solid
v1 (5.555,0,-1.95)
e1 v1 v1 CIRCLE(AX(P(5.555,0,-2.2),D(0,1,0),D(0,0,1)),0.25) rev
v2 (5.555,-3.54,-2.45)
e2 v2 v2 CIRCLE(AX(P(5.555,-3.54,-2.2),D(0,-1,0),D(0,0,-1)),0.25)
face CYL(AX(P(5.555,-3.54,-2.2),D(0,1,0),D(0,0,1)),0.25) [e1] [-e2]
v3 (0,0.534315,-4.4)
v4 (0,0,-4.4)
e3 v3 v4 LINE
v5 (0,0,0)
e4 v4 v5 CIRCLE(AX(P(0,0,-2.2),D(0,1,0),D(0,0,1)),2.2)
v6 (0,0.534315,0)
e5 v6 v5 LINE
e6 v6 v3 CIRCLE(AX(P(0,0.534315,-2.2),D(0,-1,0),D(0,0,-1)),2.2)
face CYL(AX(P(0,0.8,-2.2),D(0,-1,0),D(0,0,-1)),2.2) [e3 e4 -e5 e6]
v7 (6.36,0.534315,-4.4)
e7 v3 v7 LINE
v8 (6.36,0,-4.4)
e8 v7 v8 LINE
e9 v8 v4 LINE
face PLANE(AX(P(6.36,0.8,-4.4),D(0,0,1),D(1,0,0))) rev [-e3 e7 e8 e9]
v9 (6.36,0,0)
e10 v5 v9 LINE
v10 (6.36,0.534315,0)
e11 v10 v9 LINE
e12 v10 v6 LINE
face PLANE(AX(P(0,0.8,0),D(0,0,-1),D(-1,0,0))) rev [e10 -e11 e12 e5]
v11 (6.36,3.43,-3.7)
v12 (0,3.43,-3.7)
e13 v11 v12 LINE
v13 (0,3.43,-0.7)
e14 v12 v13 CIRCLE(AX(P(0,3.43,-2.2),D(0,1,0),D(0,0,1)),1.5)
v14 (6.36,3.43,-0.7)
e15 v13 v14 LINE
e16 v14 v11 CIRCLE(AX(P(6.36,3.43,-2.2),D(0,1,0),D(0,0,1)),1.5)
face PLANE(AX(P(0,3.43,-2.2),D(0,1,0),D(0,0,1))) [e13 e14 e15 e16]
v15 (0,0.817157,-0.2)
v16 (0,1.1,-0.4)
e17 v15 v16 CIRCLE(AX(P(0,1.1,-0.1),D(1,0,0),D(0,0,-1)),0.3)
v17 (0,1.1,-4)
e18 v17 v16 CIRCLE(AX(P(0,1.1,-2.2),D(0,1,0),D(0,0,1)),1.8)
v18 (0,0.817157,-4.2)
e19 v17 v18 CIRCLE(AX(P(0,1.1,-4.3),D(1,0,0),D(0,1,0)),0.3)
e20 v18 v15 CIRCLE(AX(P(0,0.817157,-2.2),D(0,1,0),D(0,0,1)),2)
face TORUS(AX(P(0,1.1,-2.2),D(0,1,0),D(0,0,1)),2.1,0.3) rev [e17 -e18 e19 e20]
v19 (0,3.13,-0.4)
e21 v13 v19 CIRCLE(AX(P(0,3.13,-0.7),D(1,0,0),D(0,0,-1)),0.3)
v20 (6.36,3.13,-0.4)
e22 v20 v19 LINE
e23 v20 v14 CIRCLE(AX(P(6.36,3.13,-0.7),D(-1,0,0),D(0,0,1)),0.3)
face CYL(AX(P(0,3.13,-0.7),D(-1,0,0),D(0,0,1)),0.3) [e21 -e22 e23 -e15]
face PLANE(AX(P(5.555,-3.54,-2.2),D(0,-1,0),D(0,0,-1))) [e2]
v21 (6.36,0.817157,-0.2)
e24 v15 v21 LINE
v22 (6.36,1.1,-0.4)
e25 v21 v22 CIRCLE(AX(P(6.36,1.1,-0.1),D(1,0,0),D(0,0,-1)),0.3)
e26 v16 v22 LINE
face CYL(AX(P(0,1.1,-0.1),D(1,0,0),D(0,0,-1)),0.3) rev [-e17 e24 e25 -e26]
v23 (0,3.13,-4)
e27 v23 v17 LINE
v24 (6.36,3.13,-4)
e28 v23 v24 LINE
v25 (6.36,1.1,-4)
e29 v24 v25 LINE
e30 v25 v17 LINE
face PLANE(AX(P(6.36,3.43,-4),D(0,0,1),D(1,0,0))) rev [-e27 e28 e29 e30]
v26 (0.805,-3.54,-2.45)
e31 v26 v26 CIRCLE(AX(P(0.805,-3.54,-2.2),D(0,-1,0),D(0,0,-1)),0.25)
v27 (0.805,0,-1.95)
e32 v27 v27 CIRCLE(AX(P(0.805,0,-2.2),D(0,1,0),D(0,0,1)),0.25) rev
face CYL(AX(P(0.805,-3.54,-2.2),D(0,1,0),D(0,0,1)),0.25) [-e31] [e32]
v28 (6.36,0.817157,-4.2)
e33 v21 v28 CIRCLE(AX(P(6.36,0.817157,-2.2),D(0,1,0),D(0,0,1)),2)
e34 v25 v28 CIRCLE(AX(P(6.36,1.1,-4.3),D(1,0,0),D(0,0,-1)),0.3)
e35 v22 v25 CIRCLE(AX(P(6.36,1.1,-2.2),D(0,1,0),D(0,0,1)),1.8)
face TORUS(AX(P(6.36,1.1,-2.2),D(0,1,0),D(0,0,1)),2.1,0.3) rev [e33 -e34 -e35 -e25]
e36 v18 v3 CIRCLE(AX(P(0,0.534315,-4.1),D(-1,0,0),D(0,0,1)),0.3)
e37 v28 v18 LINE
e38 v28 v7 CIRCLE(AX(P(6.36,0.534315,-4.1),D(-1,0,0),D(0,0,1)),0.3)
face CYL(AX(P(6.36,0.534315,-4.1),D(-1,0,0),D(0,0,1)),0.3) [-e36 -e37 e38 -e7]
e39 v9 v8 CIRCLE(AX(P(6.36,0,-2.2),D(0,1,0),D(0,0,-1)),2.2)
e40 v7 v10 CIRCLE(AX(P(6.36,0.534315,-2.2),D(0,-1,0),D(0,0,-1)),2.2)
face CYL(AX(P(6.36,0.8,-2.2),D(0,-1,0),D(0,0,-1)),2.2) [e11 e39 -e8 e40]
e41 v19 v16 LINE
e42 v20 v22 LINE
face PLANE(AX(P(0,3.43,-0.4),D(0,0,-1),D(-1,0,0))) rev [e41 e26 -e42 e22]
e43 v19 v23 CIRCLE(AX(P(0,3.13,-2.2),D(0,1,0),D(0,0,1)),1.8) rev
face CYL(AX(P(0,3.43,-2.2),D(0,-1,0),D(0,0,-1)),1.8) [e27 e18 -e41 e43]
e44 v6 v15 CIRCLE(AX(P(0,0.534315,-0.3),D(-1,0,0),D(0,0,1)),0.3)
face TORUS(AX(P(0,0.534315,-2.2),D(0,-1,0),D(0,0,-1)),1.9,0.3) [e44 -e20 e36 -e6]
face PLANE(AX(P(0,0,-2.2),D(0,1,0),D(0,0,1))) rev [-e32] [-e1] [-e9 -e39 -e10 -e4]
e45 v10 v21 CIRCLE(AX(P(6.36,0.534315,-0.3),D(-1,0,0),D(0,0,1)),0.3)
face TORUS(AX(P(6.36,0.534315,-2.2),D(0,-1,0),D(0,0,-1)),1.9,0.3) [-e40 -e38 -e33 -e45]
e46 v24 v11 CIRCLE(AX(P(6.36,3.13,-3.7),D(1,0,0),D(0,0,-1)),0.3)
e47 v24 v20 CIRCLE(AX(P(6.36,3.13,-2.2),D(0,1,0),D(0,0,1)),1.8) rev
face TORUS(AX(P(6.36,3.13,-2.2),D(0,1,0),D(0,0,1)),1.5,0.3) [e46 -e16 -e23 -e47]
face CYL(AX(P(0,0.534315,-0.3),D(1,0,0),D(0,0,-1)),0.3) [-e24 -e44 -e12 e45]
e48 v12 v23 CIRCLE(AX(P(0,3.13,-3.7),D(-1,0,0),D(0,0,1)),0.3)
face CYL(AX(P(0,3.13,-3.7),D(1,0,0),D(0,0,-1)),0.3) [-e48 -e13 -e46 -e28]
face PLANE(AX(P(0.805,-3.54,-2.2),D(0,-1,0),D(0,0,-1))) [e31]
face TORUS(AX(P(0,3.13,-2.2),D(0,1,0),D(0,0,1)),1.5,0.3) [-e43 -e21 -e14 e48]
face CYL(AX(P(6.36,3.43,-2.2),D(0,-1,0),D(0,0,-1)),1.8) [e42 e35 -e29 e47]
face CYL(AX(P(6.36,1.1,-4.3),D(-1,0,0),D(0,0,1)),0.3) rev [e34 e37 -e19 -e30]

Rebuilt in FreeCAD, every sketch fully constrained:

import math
import FreeCAD as App
import Part
import Sketcher
Q = App.Units.Quantity


def edges_at(feature, points):
    """Names of the edges that pass closest to the given points."""
    edges = feature.Shape.Edges
    near = lambda p: min(range(len(edges)), key=lambda i: edges[i].distToShape(Part.Vertex(*p))[0])
    return sorted({f"Edge{near(p) + 1}" for p in points})

doc = App.newDocument("Part")
body = doc.addObject("PartDesign::Body", "Body")

# Sketch on XZ plane
sketch1 = body.newObject("Sketcher::SketchObject", "Sketch")
sketch1.AttachmentSupport = (doc.getObject("XZ_Plane"), [""])
sketch1.MapMode = "FlatFace"
sketch1.addGeometry([
    Part.LineSegment(App.Vector(0, -0.4, 0), App.Vector(6.4, -0.4, 0)),
    Part.ArcOfCircle(Part.Circle(App.Vector(6.4, -2.2, 0), App.Vector(0, 0, 1), 1.8), math.radians(-90), math.radians(90)),
    Part.LineSegment(App.Vector(6.4, -4, 0), App.Vector(0, -4, 0)),
    Part.ArcOfCircle(Part.Circle(App.Vector(0, -2.2, 0), App.Vector(0, 0, 1), 1.8), math.radians(90), math.radians(270)),
], False)
sketch1.addConstraint([
    Sketcher.Constraint("Tangent", 0, 2, 1, 2),
    Sketcher.Constraint("Tangent", 1, 1, 2, 1),
    Sketcher.Constraint("Tangent", 2, 2, 3, 2),
    Sketcher.Constraint("Tangent", 3, 1, 0, 1),
    Sketcher.Constraint("Horizontal", 0),
    Sketcher.Constraint("Horizontal", 2),
    Sketcher.Constraint("PointOnObject", 3, 3, -2),
    Sketcher.Constraint("Radius", 1, Q("1.8 mm")),
    Sketcher.Constraint("DistanceY", 1, 1, -1, 1, Q("4 mm")),
    Sketcher.Constraint("DistanceX", 0, 1, 0, 2, Q("6.36 mm")),
])
pad1 = body.newObject("PartDesign::Pad", "Pad")
pad1.Profile = sketch1
pad1.Length = 3.43
pad1.Reversed = True

# Sketch on XZ plane
sketch2 = body.newObject("Sketcher::SketchObject", "Sketch001")
sketch2.AttachmentSupport = (doc.getObject("XZ_Plane"), [""])
sketch2.MapMode = "FlatFace"
sketch2.addGeometry([
    Part.LineSegment(App.Vector(0, 0, 0), App.Vector(6.4, 0, 0)),  # 0
    Part.ArcOfCircle(Part.Circle(App.Vector(6.4, -2.2, 0), App.Vector(0, 0, 1), 2.2), math.radians(-90), math.radians(90)),  # 1
    Part.LineSegment(App.Vector(6.4, -4.4, 0), App.Vector(0, -4.4, 0)),  # 2
    Part.ArcOfCircle(Part.Circle(App.Vector(0, -2.2, 0), App.Vector(0, 0, 1), 2.2), math.radians(90), math.radians(270)),  # 3
    Part.LineSegment(App.Vector(6.4, -0.4, 0), App.Vector(0, -0.4, 0)),  # 4
    Part.ArcOfCircle(Part.Circle(App.Vector(0, -2.2, 0), App.Vector(0, 0, 1), 1.8), math.radians(90), math.radians(270)),  # 5
    Part.LineSegment(App.Vector(0, -4, 0), App.Vector(6.4, -4, 0)),  # 6
    Part.ArcOfCircle(Part.Circle(App.Vector(6.4, -2.2, 0), App.Vector(0, 0, 1), 1.8), math.radians(-90), math.radians(90)),  # 7
], False)
sketch2.addConstraint([
    Sketcher.Constraint("Tangent", 0, 2, 1, 2),
    Sketcher.Constraint("Tangent", 1, 1, 2, 1),
    Sketcher.Constraint("Tangent", 2, 2, 3, 2),
    Sketcher.Constraint("Tangent", 3, 1, 0, 1),
    Sketcher.Constraint("Tangent", 4, 2, 5, 1),
    Sketcher.Constraint("Tangent", 5, 2, 6, 1),
    Sketcher.Constraint("Tangent", 6, 2, 7, 1),
    Sketcher.Constraint("Tangent", 7, 2, 4, 1),
    Sketcher.Constraint("Horizontal", 0),
    Sketcher.Constraint("Horizontal", 2),
    Sketcher.Constraint("Horizontal", 4),
    Sketcher.Constraint("Horizontal", 6),
    Sketcher.Constraint("Coincident", 3, 1, -1, 1),
    Sketcher.Constraint("Coincident", 5, 3, 3, 3),
    Sketcher.Constraint("Vertical", 7, 3, 0, 2),
    Sketcher.Constraint("Radius", 1, Q("2.2 mm")),
    Sketcher.Constraint("Radius", 5, Q("1.8 mm")),
    Sketcher.Constraint("DistanceX", 0, 1, 0, 2, Q("6.36 mm")),
])
pad2 = body.newObject("PartDesign::Pad", "Pad001")
pad2.Profile = sketch2
pad2.Length = 0.8
pad2.Reversed = True
doc.recompute()

fillet = body.newObject("PartDesign::Fillet", "Fillet")
fillet.Base = (pad2, edges_at(pad2, [
    (8.16, 3.43, -2.2),
    (3.18, 3.43, -4),
    (-1.8, 0.8, -2.2),
    (3.18, 0.8, -0.4),
    (8.16, 0.8, -2.2),
    (3.18, 0.8, -4),
    (-1.8, 3.43, -2.2),
    (3.18, 3.43, -0.4),
]))
fillet.Radius = 0.3
doc.recompute()

fillet2 = body.newObject("PartDesign::Fillet", "Fillet001")
fillet2.Base = (fillet, edges_at(fillet, [
    (-2.2, 0.8, -2.2),
    (3.18, 0.8, -4.4),
    (8.56, 0.8, -2.2),
    (3.18, 0.8, 0),
]))
fillet2.Radius = 0.3

# Sketch on XZ plane
sketch3 = body.newObject("Sketcher::SketchObject", "Sketch002")
sketch3.AttachmentSupport = (doc.getObject("XZ_Plane"), [""])
sketch3.MapMode = "FlatFace"
sketch3.addGeometry([
    Part.Circle(App.Vector(0.81, -2.2, 0), App.Vector(0, 0, 1), 0.25),
    Part.Circle(App.Vector(5.55, -2.2, 0), App.Vector(0, 0, 1), 0.25),
], False)
sketch3.addConstraint([
    Sketcher.Constraint("Equal", 0, 1),
    Sketcher.Constraint("Horizontal", 0, 3, 1, 3),
    Sketcher.Constraint("Diameter", 0, Q("0.5 mm")),
    Sketcher.Constraint("DistanceY", 0, 3, -1, 1, Q("2.2 mm")),
    Sketcher.Constraint("DistanceX", 0, 3, 1, 3, Q("4.75 mm")),
    Sketcher.Constraint("DistanceX", -1, 1, 0, 3, Q("0.805 mm")),
])
pad3 = body.newObject("PartDesign::Pad", "Pad002")
pad3.Profile = sketch3
pad3.Length = 3.54

doc.recompute()
